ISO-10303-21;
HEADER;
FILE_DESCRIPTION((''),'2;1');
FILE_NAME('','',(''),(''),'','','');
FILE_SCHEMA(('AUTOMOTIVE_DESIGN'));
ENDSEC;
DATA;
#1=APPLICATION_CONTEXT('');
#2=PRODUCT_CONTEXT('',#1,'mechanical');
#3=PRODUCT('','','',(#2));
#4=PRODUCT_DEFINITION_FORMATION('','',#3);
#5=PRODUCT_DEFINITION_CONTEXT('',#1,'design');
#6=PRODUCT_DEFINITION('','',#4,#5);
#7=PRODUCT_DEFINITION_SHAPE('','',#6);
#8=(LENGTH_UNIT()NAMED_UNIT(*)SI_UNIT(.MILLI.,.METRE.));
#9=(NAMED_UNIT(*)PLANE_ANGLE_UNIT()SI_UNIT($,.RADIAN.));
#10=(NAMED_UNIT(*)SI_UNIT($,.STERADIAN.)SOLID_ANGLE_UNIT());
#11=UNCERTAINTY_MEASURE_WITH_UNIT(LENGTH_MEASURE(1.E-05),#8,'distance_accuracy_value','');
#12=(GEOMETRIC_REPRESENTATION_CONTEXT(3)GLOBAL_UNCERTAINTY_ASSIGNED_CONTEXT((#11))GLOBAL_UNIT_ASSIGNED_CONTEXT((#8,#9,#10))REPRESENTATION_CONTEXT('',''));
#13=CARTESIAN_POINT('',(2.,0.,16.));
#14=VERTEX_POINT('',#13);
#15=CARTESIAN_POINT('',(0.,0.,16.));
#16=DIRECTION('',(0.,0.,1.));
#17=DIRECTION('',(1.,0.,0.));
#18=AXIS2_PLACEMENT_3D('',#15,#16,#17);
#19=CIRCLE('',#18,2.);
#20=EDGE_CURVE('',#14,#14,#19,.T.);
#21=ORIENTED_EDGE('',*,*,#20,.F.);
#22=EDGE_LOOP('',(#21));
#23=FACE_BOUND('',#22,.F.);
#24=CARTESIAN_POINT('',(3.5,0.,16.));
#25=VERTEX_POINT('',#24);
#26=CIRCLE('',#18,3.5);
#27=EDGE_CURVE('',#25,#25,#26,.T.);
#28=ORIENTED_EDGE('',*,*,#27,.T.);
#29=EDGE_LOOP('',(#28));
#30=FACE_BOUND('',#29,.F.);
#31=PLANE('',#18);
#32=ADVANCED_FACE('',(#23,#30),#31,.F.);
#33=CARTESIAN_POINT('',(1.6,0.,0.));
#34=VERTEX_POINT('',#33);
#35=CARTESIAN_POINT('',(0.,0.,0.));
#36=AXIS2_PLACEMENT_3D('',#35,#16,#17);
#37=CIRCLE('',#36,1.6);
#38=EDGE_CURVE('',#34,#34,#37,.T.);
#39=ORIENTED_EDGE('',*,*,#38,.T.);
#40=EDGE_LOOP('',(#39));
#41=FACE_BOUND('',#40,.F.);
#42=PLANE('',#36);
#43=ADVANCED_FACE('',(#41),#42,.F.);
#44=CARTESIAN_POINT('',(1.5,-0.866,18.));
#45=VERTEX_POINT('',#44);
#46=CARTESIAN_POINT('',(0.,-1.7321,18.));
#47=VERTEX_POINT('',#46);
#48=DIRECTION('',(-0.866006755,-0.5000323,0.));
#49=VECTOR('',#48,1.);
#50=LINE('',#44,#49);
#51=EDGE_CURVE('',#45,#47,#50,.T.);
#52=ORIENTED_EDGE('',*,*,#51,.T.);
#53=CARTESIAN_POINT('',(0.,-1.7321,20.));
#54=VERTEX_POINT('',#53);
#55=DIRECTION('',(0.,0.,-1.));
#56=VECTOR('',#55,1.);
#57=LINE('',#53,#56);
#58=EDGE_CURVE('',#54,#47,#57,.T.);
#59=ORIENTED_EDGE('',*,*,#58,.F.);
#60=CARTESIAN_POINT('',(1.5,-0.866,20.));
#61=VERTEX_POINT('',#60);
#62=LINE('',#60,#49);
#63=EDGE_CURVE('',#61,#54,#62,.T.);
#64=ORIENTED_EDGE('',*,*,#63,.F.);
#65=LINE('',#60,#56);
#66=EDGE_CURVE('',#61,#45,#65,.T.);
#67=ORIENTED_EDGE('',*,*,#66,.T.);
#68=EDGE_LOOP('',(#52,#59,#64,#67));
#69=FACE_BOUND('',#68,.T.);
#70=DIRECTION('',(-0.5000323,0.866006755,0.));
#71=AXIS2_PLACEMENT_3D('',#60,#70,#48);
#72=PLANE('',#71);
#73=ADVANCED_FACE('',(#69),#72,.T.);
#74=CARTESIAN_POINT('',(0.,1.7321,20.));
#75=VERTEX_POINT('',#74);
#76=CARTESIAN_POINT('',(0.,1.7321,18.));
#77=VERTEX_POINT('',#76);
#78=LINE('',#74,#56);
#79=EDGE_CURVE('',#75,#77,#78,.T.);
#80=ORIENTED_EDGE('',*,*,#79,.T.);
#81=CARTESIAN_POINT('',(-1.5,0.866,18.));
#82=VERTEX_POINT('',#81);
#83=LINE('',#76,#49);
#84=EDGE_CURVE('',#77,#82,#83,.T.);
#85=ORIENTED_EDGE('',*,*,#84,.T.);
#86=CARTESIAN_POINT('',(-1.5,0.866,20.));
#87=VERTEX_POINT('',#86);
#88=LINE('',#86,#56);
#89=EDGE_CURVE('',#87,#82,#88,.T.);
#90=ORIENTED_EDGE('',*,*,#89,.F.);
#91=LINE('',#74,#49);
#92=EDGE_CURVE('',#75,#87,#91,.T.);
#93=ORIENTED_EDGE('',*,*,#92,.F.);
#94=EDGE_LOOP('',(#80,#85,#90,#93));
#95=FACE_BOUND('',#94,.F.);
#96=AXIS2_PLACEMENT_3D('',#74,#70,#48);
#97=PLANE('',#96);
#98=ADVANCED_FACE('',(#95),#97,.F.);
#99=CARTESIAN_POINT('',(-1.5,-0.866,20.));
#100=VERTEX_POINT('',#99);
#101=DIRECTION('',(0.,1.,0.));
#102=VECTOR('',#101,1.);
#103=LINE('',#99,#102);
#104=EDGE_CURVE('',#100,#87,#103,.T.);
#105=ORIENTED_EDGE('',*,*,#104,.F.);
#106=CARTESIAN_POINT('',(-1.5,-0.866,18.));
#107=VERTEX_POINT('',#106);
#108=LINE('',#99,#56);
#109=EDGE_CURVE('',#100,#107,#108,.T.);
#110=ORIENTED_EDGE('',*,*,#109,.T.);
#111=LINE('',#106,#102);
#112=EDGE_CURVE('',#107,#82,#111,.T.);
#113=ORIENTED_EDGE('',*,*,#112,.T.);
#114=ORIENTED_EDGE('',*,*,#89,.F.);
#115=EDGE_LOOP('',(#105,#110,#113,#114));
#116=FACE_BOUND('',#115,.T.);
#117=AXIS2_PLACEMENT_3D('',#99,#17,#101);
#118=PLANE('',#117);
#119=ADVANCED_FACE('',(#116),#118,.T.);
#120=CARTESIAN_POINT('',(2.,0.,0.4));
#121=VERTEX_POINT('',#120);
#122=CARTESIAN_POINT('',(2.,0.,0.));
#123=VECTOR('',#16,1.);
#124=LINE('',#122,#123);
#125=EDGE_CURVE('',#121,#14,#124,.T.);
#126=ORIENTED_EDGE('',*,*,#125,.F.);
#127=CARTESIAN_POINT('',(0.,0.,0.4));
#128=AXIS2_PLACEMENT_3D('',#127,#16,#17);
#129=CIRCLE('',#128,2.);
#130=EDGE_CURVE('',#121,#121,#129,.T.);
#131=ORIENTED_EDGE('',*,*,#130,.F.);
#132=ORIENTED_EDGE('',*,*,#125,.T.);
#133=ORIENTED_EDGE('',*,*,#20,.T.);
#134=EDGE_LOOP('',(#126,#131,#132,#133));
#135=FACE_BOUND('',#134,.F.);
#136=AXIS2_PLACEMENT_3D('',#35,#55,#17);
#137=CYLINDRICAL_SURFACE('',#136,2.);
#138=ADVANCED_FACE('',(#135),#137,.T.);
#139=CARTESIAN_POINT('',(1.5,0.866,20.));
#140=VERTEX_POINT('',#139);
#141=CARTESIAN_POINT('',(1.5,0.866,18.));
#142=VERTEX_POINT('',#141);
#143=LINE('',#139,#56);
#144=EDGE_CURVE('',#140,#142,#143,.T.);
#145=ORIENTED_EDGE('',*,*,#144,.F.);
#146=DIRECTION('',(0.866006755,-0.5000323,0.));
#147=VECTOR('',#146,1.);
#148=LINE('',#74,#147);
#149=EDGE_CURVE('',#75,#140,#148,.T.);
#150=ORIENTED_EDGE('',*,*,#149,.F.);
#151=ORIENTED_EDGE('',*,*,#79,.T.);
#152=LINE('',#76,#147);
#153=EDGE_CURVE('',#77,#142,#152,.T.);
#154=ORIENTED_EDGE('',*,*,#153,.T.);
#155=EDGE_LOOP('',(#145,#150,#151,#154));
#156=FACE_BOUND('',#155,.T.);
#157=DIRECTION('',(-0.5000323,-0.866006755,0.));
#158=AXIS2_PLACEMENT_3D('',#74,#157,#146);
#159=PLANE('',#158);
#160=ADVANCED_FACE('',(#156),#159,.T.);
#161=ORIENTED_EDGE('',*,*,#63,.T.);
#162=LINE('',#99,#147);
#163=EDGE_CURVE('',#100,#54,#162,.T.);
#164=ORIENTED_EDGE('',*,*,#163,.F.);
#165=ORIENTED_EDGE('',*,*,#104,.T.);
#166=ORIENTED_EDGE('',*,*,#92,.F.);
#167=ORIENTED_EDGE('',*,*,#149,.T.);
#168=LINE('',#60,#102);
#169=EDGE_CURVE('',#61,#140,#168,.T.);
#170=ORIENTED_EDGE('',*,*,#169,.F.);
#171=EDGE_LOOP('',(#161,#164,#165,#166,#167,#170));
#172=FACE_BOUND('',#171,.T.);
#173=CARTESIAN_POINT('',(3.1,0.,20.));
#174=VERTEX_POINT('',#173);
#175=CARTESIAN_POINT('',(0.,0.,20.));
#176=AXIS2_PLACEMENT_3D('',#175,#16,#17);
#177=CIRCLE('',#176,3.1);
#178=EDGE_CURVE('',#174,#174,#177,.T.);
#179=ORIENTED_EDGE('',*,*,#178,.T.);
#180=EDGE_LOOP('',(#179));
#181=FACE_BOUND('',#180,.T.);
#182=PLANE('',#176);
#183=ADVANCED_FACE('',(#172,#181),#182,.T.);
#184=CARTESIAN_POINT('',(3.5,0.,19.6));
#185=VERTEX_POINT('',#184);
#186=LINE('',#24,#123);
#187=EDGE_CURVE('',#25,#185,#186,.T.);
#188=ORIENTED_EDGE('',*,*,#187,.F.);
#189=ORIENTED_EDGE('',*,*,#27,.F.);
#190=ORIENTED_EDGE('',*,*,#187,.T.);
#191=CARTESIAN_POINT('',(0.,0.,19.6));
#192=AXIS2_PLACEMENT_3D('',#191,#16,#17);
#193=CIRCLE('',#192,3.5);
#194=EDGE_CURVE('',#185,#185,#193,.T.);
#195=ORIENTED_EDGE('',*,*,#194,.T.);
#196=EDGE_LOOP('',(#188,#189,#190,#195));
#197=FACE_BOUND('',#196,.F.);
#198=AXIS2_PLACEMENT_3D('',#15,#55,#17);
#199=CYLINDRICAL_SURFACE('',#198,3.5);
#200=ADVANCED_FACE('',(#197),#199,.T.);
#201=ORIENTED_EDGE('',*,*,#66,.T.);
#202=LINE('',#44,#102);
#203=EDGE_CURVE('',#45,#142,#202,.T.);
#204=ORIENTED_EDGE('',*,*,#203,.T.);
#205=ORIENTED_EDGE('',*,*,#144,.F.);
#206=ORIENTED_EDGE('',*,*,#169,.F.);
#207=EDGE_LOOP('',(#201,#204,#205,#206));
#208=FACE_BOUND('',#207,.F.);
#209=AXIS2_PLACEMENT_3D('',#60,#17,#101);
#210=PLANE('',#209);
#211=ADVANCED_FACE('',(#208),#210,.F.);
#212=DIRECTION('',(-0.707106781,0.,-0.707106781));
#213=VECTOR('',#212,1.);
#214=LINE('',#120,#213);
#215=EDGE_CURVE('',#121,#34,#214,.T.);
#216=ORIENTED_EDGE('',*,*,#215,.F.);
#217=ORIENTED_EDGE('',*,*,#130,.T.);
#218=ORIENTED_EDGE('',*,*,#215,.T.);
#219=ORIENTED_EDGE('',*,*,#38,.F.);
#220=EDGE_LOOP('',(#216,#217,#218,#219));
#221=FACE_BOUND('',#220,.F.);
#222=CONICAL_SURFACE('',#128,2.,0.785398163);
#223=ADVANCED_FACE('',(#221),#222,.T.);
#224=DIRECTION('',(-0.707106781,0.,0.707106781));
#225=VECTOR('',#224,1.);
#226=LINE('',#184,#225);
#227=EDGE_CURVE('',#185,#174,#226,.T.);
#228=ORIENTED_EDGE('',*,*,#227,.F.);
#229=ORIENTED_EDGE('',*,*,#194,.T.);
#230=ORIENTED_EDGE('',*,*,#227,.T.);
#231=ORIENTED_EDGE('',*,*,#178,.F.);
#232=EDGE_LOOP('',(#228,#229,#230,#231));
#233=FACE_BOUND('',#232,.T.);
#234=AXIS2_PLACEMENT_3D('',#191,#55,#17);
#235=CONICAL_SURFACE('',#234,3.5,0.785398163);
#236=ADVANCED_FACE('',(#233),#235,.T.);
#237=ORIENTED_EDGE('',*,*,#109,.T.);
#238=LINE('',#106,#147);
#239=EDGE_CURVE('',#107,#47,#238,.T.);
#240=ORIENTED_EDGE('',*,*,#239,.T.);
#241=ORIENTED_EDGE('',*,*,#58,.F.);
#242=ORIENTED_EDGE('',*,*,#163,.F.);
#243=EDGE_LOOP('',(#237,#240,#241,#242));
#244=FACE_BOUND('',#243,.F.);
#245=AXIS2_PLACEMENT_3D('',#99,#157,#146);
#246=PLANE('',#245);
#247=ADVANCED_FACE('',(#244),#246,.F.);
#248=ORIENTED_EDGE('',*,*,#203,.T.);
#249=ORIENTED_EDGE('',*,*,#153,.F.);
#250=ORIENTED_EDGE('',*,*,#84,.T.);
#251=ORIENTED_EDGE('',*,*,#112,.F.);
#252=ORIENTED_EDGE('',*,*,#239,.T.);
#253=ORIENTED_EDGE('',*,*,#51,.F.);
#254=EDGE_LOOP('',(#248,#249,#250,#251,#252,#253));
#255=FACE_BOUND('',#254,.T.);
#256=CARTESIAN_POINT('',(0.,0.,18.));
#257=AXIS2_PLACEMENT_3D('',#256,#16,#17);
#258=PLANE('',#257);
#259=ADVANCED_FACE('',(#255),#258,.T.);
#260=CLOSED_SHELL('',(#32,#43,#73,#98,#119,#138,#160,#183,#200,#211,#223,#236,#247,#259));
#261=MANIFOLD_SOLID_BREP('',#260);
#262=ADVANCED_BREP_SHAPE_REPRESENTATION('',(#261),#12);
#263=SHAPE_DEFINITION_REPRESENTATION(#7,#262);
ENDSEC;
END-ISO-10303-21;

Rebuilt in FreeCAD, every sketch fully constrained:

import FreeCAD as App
import Part
import Sketcher

V = App.Vector
Q = App.Units.Quantity


def edges_at(feature, points):
    """Names of the edges that pass closest to the given points."""
    edges = feature.Shape.Edges
    near = lambda p: min(range(len(edges)), key=lambda i: edges[i].distToShape(Part.Vertex(*p))[0])
    return sorted({f"Edge{near(p) + 1}" for p in points})

doc = App.newDocument("Part")
body = doc.addObject("PartDesign::Body", "Body")

sketch1 = doc.addObject("Sketcher::SketchObject", "Sketch")
body.addObject(sketch1)
sketch1.AttachmentSupport = (doc.XY_Plane, [""])
sketch1.MapMode = "FlatFace"
sketch1.addGeometry(Part.Circle(V(0, 0, 0), V(0, 0, 1), 2), False)
sketch1.addConstraint(Sketcher.Constraint("Coincident", 0, 3, -1, 1))
sketch1.addConstraint(Sketcher.Constraint("Diameter", 0, Q("4 mm")))
pad1 = doc.addObject("PartDesign::Pad", "Pad")
body.addObject(pad1)
pad1.Profile = sketch1
pad1.Length = 16

sketch2 = doc.addObject("Sketcher::SketchObject", "Sketch001")
body.addObject(sketch2)
sketch2.AttachmentSupport = (doc.XY_Plane, [""])
sketch2.MapMode = "FlatFace"
sketch2.AttachmentOffset = App.Placement(V(0, 0, 16), App.Rotation())
sketch2.addGeometry(Part.Circle(V(0, 0, 0), V(0, 0, 1), 3.5), False)
sketch2.addConstraint(Sketcher.Constraint("Coincident", 0, 3, -1, 1))
sketch2.addConstraint(Sketcher.Constraint("Diameter", 0, Q("7 mm")))
pad2 = doc.addObject("PartDesign::Pad", "Pad001")
body.addObject(pad2)
pad2.Profile = sketch2
pad2.Length = 4

sketch3 = doc.addObject("Sketcher::SketchObject", "Sketch002")
body.addObject(sketch3)
sketch3.AttachmentSupport = (doc.XY_Plane, [""])
sketch3.MapMode = "FlatFace"
sketch3.AttachmentOffset = App.Placement(V(0, 0, 20), App.Rotation())
sketch3.addGeometry(Part.LineSegment(V(1.5, 0.9, 0), V(0, 1.7, 0)), False)
sketch3.addGeometry(Part.LineSegment(V(0, 1.7, 0), V(-1.5, 0.9, 0)), False)
sketch3.addGeometry(Part.LineSegment(V(-1.5, 0.9, 0), V(-1.5, -0.9, 0)), False)
sketch3.addGeometry(Part.LineSegment(V(-1.5, -0.9, 0), V(0, -1.7, 0)), False)
sketch3.addGeometry(Part.LineSegment(V(0, -1.7, 0), V(1.5, -0.9, 0)), False)
sketch3.addGeometry(Part.LineSegment(V(1.5, -0.9, 0), V(1.5, 0.9, 0)), False)
sketch3.addConstraint(Sketcher.Constraint("Coincident", 0, 2, 1, 1))
sketch3.addConstraint(Sketcher.Constraint("Coincident", 1, 2, 2, 1))
sketch3.addConstraint(Sketcher.Constraint("Coincident", 2, 2, 3, 1))
sketch3.addConstraint(Sketcher.Constraint("Coincident", 3, 2, 4, 1))
sketch3.addConstraint(Sketcher.Constraint("Coincident", 4, 2, 5, 1))
sketch3.addConstraint(Sketcher.Constraint("Coincident", 5, 2, 0, 1))
sketch3.addConstraint(Sketcher.Constraint("Vertical", 2))
sketch3.addConstraint(Sketcher.Constraint("Vertical", 5))
sketch3.addConstraint(Sketcher.Constraint("Symmetric", 0, 2, 3, 2, -1, 1))
sketch3.addConstraint(Sketcher.Constraint("Symmetric", 1, 2, 4, 2, -1, 1))
sketch3.addConstraint(Sketcher.Constraint("PointOnObject", 0, 2, -2))
sketch3.addConstraint(Sketcher.Constraint("Parallel", 0, 3))
sketch3.addConstraint(Sketcher.Constraint("Horizontal", 2, 2, 4, 2))
sketch3.addConstraint(Sketcher.Constraint("DistanceX", 2, 2, 4, 2, Q("3 mm")))
sketch3.addConstraint(Sketcher.Constraint("DistanceY", 2, 2, 2, 1, Q("1.732 mm")))
sketch3.addConstraint(Sketcher.Constraint("Distance", 0, Q("1.732 mm")))
pocket1 = doc.addObject("PartDesign::Pocket", "Pocket")
body.addObject(pocket1)
pocket1.Profile = sketch3
pocket1.Length = 2
doc.recompute()

chamfer = doc.addObject("PartDesign::Chamfer", "Chamfer")
body.addObject(chamfer)
chamfer.Base = (pocket1, edges_at(pocket1, [(-3.5, 0, 20), (-2, 0, 0)]))
chamfer.Size = 0.4

doc.recompute()
